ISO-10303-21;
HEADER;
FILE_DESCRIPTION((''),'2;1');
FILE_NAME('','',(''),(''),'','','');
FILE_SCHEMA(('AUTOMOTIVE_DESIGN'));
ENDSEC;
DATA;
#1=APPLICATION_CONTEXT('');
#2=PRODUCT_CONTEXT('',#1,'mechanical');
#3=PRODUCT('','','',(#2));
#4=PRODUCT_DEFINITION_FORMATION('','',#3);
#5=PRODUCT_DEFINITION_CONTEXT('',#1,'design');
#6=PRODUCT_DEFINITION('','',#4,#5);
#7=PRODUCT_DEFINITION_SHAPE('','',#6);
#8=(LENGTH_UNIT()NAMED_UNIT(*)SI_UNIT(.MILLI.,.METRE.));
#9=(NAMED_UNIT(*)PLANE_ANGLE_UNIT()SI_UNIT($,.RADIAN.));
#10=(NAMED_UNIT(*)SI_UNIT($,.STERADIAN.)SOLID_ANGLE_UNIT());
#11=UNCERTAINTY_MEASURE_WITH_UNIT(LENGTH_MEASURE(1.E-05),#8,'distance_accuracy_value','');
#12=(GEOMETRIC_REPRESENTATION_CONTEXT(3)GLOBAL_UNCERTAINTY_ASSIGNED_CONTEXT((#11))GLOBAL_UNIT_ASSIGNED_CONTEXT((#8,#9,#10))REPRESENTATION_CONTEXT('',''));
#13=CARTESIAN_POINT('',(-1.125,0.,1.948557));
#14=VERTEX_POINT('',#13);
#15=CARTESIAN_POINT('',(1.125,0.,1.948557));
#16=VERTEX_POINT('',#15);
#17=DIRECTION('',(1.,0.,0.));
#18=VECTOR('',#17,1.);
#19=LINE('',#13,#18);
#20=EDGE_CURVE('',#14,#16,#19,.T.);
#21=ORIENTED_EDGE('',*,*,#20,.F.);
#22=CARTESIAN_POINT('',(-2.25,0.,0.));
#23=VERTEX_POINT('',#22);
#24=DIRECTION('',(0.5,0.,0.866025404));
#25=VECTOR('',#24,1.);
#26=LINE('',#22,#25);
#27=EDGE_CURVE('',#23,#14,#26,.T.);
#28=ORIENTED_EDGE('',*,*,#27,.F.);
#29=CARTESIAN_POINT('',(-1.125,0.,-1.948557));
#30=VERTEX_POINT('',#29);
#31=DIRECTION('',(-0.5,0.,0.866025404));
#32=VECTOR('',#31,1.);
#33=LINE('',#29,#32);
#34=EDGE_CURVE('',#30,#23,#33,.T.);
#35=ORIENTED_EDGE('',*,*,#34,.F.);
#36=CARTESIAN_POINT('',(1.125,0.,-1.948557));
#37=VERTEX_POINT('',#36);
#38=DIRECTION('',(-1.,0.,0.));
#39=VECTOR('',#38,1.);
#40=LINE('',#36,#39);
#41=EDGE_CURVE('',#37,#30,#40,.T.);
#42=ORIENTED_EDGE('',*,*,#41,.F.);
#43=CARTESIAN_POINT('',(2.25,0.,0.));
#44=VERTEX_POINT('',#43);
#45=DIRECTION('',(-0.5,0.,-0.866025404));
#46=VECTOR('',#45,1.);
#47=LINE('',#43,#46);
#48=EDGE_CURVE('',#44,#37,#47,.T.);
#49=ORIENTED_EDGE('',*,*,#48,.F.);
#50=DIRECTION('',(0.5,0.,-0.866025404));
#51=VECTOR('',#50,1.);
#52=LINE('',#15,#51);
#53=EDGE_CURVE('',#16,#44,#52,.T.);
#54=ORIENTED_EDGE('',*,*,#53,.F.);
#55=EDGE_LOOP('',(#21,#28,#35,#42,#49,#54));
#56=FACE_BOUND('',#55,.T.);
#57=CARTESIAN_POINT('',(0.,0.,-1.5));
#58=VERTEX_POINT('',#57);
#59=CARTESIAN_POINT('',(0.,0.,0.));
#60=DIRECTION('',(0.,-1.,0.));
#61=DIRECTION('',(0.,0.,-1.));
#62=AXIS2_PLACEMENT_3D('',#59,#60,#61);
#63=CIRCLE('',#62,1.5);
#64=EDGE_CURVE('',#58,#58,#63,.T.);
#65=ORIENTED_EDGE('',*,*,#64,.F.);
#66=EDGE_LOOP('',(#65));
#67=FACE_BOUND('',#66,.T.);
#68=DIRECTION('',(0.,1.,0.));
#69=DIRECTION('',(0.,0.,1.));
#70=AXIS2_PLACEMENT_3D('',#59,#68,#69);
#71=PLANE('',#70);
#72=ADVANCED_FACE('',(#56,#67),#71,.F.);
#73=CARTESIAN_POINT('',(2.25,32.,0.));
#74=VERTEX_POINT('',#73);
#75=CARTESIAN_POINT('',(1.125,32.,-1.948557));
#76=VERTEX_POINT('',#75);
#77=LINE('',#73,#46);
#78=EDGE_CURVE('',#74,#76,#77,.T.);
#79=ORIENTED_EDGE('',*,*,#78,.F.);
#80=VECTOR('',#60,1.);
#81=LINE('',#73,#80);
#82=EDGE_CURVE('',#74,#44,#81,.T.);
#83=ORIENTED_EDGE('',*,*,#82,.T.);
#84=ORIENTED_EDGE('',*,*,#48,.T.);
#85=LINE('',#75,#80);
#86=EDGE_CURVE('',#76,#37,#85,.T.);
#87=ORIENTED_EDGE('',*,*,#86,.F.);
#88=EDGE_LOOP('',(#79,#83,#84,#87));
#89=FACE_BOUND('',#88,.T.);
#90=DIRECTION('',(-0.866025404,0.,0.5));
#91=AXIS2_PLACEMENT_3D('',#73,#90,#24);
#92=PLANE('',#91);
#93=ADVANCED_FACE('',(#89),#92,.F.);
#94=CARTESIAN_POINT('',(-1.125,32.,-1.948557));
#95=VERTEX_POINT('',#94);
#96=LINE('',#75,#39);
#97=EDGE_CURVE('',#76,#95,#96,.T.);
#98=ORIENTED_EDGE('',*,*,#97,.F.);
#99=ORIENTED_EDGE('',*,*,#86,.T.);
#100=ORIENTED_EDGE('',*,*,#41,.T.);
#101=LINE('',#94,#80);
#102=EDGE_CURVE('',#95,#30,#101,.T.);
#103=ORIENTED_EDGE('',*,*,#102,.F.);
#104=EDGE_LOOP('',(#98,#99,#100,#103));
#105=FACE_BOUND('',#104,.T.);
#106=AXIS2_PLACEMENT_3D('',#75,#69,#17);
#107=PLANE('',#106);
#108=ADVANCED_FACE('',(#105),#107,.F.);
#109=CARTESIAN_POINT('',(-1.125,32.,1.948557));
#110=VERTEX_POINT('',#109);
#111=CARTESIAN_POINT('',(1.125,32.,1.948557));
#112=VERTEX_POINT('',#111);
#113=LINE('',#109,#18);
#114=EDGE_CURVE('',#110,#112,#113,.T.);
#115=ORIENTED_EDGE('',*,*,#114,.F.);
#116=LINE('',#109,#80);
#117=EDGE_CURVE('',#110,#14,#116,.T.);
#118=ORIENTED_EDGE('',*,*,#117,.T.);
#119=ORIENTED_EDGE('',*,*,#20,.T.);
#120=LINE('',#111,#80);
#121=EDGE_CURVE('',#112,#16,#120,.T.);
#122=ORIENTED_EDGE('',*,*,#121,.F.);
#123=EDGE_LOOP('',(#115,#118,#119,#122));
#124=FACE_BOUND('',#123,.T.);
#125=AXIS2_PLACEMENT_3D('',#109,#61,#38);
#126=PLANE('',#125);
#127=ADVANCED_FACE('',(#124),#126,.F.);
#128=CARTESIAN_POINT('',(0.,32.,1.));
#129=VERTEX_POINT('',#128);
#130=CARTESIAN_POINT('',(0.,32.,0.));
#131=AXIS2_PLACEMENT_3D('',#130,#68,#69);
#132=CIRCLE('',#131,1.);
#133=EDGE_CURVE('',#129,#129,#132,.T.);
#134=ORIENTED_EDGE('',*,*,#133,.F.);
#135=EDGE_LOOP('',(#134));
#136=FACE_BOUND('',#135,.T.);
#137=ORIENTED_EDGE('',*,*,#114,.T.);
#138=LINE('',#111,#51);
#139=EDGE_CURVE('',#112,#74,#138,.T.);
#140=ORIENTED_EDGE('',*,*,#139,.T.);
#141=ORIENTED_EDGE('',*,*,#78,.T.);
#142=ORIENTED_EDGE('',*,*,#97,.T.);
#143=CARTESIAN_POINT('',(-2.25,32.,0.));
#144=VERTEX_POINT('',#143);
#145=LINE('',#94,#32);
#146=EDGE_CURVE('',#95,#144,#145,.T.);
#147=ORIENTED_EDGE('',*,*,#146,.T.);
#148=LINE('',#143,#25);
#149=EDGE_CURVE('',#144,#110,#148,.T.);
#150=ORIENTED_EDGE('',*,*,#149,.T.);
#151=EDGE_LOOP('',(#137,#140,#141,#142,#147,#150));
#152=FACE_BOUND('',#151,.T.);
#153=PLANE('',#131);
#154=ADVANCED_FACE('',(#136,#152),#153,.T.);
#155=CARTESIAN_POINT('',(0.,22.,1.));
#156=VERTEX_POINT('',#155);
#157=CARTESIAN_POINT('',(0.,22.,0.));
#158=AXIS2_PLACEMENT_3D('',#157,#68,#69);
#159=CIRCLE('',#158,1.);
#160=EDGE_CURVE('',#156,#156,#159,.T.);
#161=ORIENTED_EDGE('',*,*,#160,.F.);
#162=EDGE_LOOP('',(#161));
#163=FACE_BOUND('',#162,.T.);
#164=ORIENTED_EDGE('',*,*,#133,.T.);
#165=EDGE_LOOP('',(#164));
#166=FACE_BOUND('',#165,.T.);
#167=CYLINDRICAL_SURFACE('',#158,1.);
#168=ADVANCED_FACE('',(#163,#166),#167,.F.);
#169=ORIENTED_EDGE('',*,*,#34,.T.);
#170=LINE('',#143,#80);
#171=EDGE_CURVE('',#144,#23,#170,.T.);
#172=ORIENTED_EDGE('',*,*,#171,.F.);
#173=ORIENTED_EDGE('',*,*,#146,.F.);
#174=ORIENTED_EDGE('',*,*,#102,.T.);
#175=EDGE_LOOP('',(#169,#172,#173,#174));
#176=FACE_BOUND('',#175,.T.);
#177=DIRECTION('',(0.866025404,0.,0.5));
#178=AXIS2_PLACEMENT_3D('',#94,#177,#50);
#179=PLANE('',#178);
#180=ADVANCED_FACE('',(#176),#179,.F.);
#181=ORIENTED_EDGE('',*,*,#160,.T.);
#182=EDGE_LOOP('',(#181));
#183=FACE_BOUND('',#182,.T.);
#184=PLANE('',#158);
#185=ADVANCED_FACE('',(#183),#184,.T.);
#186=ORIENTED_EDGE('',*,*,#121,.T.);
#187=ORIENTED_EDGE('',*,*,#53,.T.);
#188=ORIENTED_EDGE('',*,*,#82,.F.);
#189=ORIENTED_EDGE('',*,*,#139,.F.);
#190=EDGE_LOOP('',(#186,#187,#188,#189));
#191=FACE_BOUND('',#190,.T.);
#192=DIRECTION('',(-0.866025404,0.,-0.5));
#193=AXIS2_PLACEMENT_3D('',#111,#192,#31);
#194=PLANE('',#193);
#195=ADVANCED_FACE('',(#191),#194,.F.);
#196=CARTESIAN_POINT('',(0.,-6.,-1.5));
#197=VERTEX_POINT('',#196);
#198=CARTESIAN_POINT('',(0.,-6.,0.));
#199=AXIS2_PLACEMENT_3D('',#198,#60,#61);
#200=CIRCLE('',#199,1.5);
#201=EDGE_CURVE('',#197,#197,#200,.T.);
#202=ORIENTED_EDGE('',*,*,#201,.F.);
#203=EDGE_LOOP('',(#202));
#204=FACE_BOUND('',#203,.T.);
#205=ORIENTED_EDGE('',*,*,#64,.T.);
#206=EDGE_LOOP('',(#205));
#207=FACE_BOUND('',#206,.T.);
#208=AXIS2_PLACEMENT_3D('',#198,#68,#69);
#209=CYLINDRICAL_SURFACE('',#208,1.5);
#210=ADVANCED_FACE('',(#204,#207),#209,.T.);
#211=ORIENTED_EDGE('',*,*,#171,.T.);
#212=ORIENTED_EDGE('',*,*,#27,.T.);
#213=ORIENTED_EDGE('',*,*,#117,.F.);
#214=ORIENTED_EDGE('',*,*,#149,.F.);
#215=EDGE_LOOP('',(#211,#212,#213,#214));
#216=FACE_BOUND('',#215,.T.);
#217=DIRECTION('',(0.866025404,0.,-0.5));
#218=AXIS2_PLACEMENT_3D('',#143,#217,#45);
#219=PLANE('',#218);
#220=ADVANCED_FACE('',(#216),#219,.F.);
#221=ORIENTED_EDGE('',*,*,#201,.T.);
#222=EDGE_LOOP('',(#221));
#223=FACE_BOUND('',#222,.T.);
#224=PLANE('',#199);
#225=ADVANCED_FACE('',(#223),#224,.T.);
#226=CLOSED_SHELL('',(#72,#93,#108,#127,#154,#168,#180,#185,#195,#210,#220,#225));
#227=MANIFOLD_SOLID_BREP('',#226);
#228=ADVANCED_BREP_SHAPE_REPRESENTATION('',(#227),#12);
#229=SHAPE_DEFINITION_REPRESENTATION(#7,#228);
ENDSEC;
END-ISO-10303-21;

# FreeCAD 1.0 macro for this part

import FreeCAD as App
import Part
import Sketcher

V = App.Vector
Q = App.Units.Quantity


def add_polygon(sketch, points):
    """Adds a closed chain of lines whose ends are joined by coincident constraints."""
    first, n = sketch.GeometryCount, len(points)
    for a, b in zip(points, points[1:] + points[:1]):
        sketch.addGeometry(Part.LineSegment(App.Vector(*a, 0), App.Vector(*b, 0)), False)
    for i in range(n):
        sketch.addConstraint(Sketcher.Constraint("Coincident", first + i, 2, first + (i + 1) % n, 1))

doc = App.newDocument("Part")
body = doc.addObject("PartDesign::Body", "Body")

sketch1 = doc.addObject("Sketcher::SketchObject", "Sketch")
body.addObject(sketch1)
sketch1.AttachmentSupport = (doc.XZ_Plane, [""])
sketch1.MapMode = "FlatFace"
add_polygon(sketch1, [(2.2, 0), (1.1, -1.9), (-1.1, -1.9), (-2.2, 0), (-1.1, 1.9), (1.1, 1.9)])
sketch1.addConstraint([
    Sketcher.Constraint("Horizontal", 1),
    Sketcher.Constraint("Horizontal", 4),
    Sketcher.Constraint("Symmetric", 0, 2, 3, 2, -1, 1),
    Sketcher.Constraint("Symmetric", 2, 2, 5, 2, -1, 1),
    Sketcher.Constraint("PointOnObject", 2, 2, -1),
    Sketcher.Constraint("Parallel", 2, 5),
    Sketcher.Constraint("Vertical", 1, 2, 3, 2),
    Sketcher.Constraint("Angle", 0, Q("-120 deg")),
    Sketcher.Constraint("DistanceX", 1, 2, 1, 1, 2.25),
    Sketcher.Constraint("DistanceX", 2, 2, 5, 2, 4.5),
])
pad1 = doc.addObject("PartDesign::Pad", "Pad")
body.addObject(pad1)
pad1.Profile = sketch1
pad1.Length = 32
pad1.Reversed = True

sketch2 = doc.addObject("Sketcher::SketchObject", "Sketch001")
body.addObject(sketch2)
sketch2.AttachmentSupport = (doc.XZ_Plane, [""])
sketch2.MapMode = "FlatFace"
sketch2.addGeometry(Part.Circle(V(0, 0, 0), V(0, 0, 1), 1.5), False)
sketch2.addConstraint([
    Sketcher.Constraint("Coincident", 0, 3, -1, 1),
    Sketcher.Constraint("Diameter", 0, 3.0),
])
pad2 = doc.addObject("PartDesign::Pad", "Pad001")
body.addObject(pad2)
pad2.Profile = sketch2
pad2.Length = 6

sketch3 = doc.addObject("Sketcher::SketchObject", "Sketch002")
body.addObject(sketch3)
sketch3.AttachmentSupport = (doc.XZ_Plane, [""])
sketch3.MapMode = "FlatFace"
sketch3.AttachmentOffset = App.Placement(V(0, 0, -32), App.Rotation())
sketch3.addGeometry(Part.Circle(V(0, 0, 0), V(0, 0, 1), 1), False)
sketch3.addConstraint([
    Sketcher.Constraint("Coincident", 0, 3, -1, 1),
    Sketcher.Constraint("Diameter", 0, 2.0),
])
pocket1 = doc.addObject("PartDesign::Pocket", "Pocket")
body.addObject(pocket1)
pocket1.Profile = sketch3
pocket1.Length = 10
pocket1.Reversed = True

doc.recompute()
